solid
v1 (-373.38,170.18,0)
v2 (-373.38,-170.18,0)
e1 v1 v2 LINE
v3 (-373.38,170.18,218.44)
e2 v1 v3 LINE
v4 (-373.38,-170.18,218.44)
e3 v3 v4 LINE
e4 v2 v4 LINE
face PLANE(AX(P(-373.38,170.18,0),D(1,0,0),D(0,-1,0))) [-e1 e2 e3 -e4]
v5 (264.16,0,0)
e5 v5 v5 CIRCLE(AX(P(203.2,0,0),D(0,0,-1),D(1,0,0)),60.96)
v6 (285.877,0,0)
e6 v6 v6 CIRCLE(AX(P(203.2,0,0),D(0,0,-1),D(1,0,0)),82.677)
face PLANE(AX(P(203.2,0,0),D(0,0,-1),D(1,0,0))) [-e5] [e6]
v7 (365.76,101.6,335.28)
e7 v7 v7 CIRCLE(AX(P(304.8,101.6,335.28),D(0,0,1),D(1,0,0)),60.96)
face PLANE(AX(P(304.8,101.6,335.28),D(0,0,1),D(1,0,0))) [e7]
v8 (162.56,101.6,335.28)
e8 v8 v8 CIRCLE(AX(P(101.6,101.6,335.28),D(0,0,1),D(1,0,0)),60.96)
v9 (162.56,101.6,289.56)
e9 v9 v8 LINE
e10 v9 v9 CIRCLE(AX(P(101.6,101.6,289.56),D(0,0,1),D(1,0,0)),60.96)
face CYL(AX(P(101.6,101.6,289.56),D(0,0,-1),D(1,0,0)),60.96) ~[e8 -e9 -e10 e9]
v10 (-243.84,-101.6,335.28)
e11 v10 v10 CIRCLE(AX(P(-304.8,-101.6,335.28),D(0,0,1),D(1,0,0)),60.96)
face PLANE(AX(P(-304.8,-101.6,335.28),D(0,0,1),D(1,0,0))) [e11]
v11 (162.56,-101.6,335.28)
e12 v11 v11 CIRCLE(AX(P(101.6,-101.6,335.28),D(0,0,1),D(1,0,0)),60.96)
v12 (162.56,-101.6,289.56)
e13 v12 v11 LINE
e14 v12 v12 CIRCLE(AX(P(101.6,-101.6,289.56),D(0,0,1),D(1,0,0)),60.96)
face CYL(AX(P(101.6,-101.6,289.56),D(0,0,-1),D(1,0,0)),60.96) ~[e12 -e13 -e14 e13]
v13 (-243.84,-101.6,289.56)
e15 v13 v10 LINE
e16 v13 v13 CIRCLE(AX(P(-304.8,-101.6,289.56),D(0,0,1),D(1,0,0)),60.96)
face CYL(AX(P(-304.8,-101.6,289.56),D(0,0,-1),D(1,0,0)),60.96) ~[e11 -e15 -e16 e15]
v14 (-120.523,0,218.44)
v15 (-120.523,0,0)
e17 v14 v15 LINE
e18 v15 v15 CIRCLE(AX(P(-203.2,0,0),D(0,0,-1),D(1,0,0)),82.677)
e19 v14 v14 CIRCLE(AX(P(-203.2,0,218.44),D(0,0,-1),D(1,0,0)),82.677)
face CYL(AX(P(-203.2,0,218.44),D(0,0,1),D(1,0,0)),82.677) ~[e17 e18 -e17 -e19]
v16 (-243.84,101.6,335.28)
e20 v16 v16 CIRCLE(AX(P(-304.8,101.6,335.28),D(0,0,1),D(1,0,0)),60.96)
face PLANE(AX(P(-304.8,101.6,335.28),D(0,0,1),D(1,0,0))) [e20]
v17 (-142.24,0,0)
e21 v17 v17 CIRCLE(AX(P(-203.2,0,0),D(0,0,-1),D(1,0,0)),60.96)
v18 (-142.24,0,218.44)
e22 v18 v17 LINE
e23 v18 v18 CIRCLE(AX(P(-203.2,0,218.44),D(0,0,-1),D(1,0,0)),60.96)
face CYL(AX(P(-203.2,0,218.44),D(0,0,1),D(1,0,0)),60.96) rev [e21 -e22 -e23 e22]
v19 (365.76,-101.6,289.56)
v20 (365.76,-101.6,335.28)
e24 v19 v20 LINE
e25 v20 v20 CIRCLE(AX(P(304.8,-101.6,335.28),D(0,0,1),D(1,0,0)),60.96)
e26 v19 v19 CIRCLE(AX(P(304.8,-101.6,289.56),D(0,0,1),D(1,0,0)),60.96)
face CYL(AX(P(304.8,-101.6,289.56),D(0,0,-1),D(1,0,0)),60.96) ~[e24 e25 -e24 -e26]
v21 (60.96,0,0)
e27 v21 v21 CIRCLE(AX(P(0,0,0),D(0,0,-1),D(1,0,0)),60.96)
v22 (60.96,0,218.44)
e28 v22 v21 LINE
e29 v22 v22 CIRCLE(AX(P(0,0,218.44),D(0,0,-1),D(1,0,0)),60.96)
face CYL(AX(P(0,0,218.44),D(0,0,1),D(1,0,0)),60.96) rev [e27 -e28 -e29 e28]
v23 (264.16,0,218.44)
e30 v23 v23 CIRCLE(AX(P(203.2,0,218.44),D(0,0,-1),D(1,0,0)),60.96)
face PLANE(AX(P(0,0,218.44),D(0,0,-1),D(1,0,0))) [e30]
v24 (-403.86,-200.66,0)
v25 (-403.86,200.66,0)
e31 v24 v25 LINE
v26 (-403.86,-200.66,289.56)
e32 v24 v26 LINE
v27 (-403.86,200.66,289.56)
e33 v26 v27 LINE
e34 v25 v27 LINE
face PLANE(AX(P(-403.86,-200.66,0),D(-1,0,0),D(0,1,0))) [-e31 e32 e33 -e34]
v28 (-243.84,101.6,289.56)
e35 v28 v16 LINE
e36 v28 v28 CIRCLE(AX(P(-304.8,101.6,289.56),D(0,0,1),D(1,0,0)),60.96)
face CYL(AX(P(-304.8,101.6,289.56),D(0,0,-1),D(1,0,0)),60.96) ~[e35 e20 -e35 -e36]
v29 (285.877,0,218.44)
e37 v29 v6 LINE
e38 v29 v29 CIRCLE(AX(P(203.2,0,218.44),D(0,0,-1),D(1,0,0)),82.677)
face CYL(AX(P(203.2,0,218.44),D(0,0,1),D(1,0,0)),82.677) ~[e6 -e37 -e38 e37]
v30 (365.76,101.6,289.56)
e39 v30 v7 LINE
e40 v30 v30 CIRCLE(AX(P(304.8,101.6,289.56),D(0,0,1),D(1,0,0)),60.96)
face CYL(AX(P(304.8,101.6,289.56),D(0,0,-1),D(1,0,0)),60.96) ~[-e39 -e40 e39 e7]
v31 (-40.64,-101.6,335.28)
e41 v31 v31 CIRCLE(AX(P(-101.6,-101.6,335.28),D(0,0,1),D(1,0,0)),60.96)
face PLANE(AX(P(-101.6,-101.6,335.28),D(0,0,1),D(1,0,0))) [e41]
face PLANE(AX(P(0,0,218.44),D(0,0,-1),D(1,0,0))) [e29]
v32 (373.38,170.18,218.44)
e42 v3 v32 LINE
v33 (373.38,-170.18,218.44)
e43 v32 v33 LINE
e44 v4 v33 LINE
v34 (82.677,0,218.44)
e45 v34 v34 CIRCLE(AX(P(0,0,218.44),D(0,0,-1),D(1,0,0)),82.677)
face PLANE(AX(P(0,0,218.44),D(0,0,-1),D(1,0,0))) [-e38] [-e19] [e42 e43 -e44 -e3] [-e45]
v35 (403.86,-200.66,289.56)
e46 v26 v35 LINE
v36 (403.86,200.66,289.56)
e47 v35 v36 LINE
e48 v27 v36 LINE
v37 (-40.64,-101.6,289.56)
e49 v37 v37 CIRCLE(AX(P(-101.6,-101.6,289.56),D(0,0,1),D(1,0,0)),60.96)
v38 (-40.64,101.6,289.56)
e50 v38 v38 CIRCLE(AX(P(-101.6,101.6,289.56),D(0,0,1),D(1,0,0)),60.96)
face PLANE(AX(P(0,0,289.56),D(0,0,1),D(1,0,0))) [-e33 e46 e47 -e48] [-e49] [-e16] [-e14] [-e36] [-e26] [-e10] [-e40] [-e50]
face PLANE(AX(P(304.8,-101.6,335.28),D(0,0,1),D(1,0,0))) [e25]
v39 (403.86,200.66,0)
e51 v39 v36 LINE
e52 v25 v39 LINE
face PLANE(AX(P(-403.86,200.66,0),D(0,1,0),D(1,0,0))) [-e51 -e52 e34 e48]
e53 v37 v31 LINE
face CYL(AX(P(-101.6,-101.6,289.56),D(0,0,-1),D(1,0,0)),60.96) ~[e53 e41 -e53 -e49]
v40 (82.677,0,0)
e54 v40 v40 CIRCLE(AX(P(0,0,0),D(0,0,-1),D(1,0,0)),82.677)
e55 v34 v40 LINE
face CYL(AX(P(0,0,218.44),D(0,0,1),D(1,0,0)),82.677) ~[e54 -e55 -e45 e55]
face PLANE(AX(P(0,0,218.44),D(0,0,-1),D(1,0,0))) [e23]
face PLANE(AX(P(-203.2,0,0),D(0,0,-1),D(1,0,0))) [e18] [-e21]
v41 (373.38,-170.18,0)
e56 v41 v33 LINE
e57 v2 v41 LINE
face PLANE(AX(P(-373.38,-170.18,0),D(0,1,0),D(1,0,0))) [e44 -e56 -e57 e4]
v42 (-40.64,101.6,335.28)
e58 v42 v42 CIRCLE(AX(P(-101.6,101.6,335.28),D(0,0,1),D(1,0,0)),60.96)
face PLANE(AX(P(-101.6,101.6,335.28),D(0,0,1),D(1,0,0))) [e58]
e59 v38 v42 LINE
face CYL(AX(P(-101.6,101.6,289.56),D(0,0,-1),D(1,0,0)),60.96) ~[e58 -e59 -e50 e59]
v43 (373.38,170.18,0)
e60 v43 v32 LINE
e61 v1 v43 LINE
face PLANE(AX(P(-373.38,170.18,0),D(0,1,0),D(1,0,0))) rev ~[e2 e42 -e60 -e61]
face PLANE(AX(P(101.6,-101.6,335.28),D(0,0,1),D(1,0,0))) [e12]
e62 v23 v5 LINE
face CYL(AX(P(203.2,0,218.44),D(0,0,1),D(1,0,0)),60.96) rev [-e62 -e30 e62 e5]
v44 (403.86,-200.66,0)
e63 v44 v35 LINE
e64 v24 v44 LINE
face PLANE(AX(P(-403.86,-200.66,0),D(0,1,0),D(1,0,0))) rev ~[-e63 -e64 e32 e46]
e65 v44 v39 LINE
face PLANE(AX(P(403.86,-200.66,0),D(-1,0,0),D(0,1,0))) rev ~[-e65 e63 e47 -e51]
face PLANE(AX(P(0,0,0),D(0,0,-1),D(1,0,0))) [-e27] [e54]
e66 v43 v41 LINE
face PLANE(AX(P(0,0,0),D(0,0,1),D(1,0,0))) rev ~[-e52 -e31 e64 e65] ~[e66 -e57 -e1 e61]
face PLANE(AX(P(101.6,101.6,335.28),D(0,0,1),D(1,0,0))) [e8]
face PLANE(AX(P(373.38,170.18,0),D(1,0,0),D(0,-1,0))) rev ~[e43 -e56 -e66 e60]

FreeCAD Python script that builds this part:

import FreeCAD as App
import Part
import Sketcher
Q = App.Units.Quantity

doc = App.newDocument("Part")
body = doc.addObject("PartDesign::Body", "Body")

# Sketch on XY plane
sketch1 = body.newObject("Sketcher::SketchObject", "Sketch")
sketch1.AttachmentSupport = (doc.getObject("XY_Plane"), [""])
sketch1.MapMode = "FlatFace"
sketch1.addGeometry([
    Part.LineSegment(App.Vector(-404, 201, 0), App.Vector(-404, -201, 0)),
    Part.LineSegment(App.Vector(-404, -201, 0), App.Vector(404, -201, 0)),
    Part.LineSegment(App.Vector(404, -201, 0), App.Vector(404, 201, 0)),
    Part.LineSegment(App.Vector(404, 201, 0), App.Vector(-404, 201, 0)),
], False)
sketch1.addConstraint([
    Sketcher.Constraint("Coincident", 0, 2, 1, 1),
    Sketcher.Constraint("Coincident", 1, 2, 2, 1),
    Sketcher.Constraint("Coincident", 2, 2, 3, 1),
    Sketcher.Constraint("Coincident", 3, 2, 0, 1),
    Sketcher.Constraint("Vertical", 0),
    Sketcher.Constraint("Horizontal", 1),
    Sketcher.Constraint("Vertical", 2),
    Sketcher.Constraint("Horizontal", 3),
    Sketcher.Constraint("Symmetric", 0, 2, 2, 2, -1, 1),
    Sketcher.Constraint("DistanceX", 1, 1, 1, 2, Q("31.8 in")),
    Sketcher.Constraint("DistanceY", 0, 2, 0, 1, Q("15.8 in")),
])
pad1 = body.newObject("PartDesign::Pad", "Pad")
pad1.Profile = sketch1
pad1.Length = Q("11.4 in")

# Sketch on XY plane
sketch2 = body.newObject("Sketcher::SketchObject", "Sketch001")
sketch2.AttachmentSupport = (doc.getObject("XY_Plane"), [""])
sketch2.MapMode = "FlatFace"
sketch2.AttachmentOffset = App.Placement(App.Vector(0, 0, 11.4 * 25.4), App.Rotation())
sketch2.addGeometry([
    Part.Circle(App.Vector(-305, -102, 0), App.Vector(0, 0, 1), 61),  # 0
    Part.Circle(App.Vector(-305, 102, 0), App.Vector(0, 0, 1), 61),  # 1
    Part.Circle(App.Vector(-102, 102, 0), App.Vector(0, 0, 1), 61),  # 2
    Part.Circle(App.Vector(-102, -102, 0), App.Vector(0, 0, 1), 61),  # 3
    Part.Circle(App.Vector(102, -102, 0), App.Vector(0, 0, 1), 61),  # 4
    Part.Circle(App.Vector(102, 102, 0), App.Vector(0, 0, 1), 61),  # 5
    Part.Circle(App.Vector(305, 102, 0), App.Vector(0, 0, 1), 61),  # 6
    Part.Circle(App.Vector(305, -102, 0), App.Vector(0, 0, 1), 61),  # 7
], False)
sketch2.addConstraint([
    Sketcher.Constraint("Equal", 0, 1),
    Sketcher.Constraint("Equal", 1, 2),
    Sketcher.Constraint("Equal", 2, 3),
    Sketcher.Constraint("Equal", 3, 4),
    Sketcher.Constraint("Equal", 4, 5),
    Sketcher.Constraint("Equal", 5, 6),
    Sketcher.Constraint("Equal", 6, 7),
    Sketcher.Constraint("Symmetric", 2, 3, 4, 3, -1, 1),
    Sketcher.Constraint("Symmetric", 3, 3, 5, 3, -1, 1),
    Sketcher.Constraint("Symmetric", 0, 3, 6, 3, -1, 1),
    Sketcher.Constraint("Symmetric", 1, 3, 7, 3, -1, 1),
    Sketcher.Constraint("Symmetric", 3, 3, 4, 3, -2),
    Sketcher.Constraint("Symmetric", 1, 3, 6, 3, -2),
    Sketcher.Constraint("Horizontal", 1, 3, 2, 3),
    Sketcher.Constraint("Diameter", 0, Q("4.8 in")),
    Sketcher.Constraint("DistanceX", 0, 3, -1, 1, Q("12 in")),
    Sketcher.Constraint("DistanceY", 0, 3, -1, 1, Q("4 in")),
    Sketcher.Constraint("DistanceX", 2, 3, -1, 1, Q("4 in")),
])
pad2 = body.newObject("PartDesign::Pad", "Pad001")
pad2.Profile = sketch2
pad2.Length = Q("1.8 in")

# Sketch on XY plane
sketch3 = body.newObject("Sketcher::SketchObject", "Sketch002")
sketch3.AttachmentSupport = (doc.getObject("XY_Plane"), [""])
sketch3.MapMode = "FlatFace"
sketch3.addGeometry([
    Part.LineSegment(App.Vector(-373, -170, 0), App.Vector(-373, 170, 0)),
    Part.LineSegment(App.Vector(-373, 170, 0), App.Vector(373, 170, 0)),
    Part.LineSegment(App.Vector(373, 170, 0), App.Vector(373, -170, 0)),
    Part.LineSegment(App.Vector(373, -170, 0), App.Vector(-373, -170, 0)),
], False)
sketch3.addConstraint([
    Sketcher.Constraint("Coincident", 0, 2, 1, 1),
    Sketcher.Constraint("Coincident", 1, 2, 2, 1),
    Sketcher.Constraint("Coincident", 2, 2, 3, 1),
    Sketcher.Constraint("Coincident", 3, 2, 0, 1),
    Sketcher.Constraint("Vertical", 0),
    Sketcher.Constraint("Horizontal", 1),
    Sketcher.Constraint("Vertical", 2),
    Sketcher.Constraint("Horizontal", 3),
    Sketcher.Constraint("Symmetric", 0, 2, 2, 2, -1, 1),
    Sketcher.Constraint("DistanceX", 1, 1, 1, 2, Q("29.4 in")),
    Sketcher.Constraint("DistanceY", 0, 1, 0, 2, Q("13.4 in")),
])
pocket1 = body.newObject("PartDesign::Pocket", "Pocket")
pocket1.Profile = sketch3
pocket1.Length = Q("8.6 in")
pocket1.Reversed = True

# Sketch on XY plane
sketch4 = body.newObject("Sketcher::SketchObject", "Sketch003")
sketch4.AttachmentSupport = (doc.getObject("XY_Plane"), [""])
sketch4.MapMode = "FlatFace"
sketch4.AttachmentOffset = App.Placement(App.Vector(0, 0, 8.6 * 25.4), App.Rotation())
sketch4.addGeometry([
    Part.Circle(App.Vector(-203, 0, 0), App.Vector(0, 0, 1), 83),  # 0
    Part.Circle(App.Vector(-203, 0, 0), App.Vector(0, 0, 1), 61),  # 1
    Part.Circle(App.Vector(0, 0, 0), App.Vector(0, 0, 1), 83),  # 2
    Part.Circle(App.Vector(0, 0, 0), App.Vector(0, 0, 1), 61),  # 3
    Part.Circle(App.Vector(203, 0, 0), App.Vector(0, 0, 1), 83),  # 4
    Part.Circle(App.Vector(203, 0, 0), App.Vector(0, 0, 1), 61),  # 5
], False)
sketch4.addConstraint([
    Sketcher.Constraint("Coincident", 2, 3, -1, 1),
    Sketcher.Constraint("Coincident", 3, 3, -1, 1),
    Sketcher.Constraint("Coincident", 1, 3, 0, 3),
    Sketcher.Constraint("Coincident", 5, 3, 4, 3),
    Sketcher.Constraint("Equal", 0, 2),
    Sketcher.Constraint("Equal", 1, 3),
    Sketcher.Constraint("Equal", 2, 4),
    Sketcher.Constraint("Equal", 3, 5),
    Sketcher.Constraint("Symmetric", 0, 3, 4, 3, -1, 1),
    Sketcher.Constraint("PointOnObject", 0, 3, -1),
    Sketcher.Constraint("Diameter", 1, Q("4.8 in")),
    Sketcher.Constraint("Diameter", 0, Q("6.51 in")),
    Sketcher.Constraint("DistanceX", 0, 3, -1, 1, Q("8 in")),
])
pad3 = body.newObject("PartDesign::Pad", "Pad002")
pad3.Profile = sketch4
pad3.Length = Q("8.6 in")
pad3.Reversed = True

doc.recompute()
